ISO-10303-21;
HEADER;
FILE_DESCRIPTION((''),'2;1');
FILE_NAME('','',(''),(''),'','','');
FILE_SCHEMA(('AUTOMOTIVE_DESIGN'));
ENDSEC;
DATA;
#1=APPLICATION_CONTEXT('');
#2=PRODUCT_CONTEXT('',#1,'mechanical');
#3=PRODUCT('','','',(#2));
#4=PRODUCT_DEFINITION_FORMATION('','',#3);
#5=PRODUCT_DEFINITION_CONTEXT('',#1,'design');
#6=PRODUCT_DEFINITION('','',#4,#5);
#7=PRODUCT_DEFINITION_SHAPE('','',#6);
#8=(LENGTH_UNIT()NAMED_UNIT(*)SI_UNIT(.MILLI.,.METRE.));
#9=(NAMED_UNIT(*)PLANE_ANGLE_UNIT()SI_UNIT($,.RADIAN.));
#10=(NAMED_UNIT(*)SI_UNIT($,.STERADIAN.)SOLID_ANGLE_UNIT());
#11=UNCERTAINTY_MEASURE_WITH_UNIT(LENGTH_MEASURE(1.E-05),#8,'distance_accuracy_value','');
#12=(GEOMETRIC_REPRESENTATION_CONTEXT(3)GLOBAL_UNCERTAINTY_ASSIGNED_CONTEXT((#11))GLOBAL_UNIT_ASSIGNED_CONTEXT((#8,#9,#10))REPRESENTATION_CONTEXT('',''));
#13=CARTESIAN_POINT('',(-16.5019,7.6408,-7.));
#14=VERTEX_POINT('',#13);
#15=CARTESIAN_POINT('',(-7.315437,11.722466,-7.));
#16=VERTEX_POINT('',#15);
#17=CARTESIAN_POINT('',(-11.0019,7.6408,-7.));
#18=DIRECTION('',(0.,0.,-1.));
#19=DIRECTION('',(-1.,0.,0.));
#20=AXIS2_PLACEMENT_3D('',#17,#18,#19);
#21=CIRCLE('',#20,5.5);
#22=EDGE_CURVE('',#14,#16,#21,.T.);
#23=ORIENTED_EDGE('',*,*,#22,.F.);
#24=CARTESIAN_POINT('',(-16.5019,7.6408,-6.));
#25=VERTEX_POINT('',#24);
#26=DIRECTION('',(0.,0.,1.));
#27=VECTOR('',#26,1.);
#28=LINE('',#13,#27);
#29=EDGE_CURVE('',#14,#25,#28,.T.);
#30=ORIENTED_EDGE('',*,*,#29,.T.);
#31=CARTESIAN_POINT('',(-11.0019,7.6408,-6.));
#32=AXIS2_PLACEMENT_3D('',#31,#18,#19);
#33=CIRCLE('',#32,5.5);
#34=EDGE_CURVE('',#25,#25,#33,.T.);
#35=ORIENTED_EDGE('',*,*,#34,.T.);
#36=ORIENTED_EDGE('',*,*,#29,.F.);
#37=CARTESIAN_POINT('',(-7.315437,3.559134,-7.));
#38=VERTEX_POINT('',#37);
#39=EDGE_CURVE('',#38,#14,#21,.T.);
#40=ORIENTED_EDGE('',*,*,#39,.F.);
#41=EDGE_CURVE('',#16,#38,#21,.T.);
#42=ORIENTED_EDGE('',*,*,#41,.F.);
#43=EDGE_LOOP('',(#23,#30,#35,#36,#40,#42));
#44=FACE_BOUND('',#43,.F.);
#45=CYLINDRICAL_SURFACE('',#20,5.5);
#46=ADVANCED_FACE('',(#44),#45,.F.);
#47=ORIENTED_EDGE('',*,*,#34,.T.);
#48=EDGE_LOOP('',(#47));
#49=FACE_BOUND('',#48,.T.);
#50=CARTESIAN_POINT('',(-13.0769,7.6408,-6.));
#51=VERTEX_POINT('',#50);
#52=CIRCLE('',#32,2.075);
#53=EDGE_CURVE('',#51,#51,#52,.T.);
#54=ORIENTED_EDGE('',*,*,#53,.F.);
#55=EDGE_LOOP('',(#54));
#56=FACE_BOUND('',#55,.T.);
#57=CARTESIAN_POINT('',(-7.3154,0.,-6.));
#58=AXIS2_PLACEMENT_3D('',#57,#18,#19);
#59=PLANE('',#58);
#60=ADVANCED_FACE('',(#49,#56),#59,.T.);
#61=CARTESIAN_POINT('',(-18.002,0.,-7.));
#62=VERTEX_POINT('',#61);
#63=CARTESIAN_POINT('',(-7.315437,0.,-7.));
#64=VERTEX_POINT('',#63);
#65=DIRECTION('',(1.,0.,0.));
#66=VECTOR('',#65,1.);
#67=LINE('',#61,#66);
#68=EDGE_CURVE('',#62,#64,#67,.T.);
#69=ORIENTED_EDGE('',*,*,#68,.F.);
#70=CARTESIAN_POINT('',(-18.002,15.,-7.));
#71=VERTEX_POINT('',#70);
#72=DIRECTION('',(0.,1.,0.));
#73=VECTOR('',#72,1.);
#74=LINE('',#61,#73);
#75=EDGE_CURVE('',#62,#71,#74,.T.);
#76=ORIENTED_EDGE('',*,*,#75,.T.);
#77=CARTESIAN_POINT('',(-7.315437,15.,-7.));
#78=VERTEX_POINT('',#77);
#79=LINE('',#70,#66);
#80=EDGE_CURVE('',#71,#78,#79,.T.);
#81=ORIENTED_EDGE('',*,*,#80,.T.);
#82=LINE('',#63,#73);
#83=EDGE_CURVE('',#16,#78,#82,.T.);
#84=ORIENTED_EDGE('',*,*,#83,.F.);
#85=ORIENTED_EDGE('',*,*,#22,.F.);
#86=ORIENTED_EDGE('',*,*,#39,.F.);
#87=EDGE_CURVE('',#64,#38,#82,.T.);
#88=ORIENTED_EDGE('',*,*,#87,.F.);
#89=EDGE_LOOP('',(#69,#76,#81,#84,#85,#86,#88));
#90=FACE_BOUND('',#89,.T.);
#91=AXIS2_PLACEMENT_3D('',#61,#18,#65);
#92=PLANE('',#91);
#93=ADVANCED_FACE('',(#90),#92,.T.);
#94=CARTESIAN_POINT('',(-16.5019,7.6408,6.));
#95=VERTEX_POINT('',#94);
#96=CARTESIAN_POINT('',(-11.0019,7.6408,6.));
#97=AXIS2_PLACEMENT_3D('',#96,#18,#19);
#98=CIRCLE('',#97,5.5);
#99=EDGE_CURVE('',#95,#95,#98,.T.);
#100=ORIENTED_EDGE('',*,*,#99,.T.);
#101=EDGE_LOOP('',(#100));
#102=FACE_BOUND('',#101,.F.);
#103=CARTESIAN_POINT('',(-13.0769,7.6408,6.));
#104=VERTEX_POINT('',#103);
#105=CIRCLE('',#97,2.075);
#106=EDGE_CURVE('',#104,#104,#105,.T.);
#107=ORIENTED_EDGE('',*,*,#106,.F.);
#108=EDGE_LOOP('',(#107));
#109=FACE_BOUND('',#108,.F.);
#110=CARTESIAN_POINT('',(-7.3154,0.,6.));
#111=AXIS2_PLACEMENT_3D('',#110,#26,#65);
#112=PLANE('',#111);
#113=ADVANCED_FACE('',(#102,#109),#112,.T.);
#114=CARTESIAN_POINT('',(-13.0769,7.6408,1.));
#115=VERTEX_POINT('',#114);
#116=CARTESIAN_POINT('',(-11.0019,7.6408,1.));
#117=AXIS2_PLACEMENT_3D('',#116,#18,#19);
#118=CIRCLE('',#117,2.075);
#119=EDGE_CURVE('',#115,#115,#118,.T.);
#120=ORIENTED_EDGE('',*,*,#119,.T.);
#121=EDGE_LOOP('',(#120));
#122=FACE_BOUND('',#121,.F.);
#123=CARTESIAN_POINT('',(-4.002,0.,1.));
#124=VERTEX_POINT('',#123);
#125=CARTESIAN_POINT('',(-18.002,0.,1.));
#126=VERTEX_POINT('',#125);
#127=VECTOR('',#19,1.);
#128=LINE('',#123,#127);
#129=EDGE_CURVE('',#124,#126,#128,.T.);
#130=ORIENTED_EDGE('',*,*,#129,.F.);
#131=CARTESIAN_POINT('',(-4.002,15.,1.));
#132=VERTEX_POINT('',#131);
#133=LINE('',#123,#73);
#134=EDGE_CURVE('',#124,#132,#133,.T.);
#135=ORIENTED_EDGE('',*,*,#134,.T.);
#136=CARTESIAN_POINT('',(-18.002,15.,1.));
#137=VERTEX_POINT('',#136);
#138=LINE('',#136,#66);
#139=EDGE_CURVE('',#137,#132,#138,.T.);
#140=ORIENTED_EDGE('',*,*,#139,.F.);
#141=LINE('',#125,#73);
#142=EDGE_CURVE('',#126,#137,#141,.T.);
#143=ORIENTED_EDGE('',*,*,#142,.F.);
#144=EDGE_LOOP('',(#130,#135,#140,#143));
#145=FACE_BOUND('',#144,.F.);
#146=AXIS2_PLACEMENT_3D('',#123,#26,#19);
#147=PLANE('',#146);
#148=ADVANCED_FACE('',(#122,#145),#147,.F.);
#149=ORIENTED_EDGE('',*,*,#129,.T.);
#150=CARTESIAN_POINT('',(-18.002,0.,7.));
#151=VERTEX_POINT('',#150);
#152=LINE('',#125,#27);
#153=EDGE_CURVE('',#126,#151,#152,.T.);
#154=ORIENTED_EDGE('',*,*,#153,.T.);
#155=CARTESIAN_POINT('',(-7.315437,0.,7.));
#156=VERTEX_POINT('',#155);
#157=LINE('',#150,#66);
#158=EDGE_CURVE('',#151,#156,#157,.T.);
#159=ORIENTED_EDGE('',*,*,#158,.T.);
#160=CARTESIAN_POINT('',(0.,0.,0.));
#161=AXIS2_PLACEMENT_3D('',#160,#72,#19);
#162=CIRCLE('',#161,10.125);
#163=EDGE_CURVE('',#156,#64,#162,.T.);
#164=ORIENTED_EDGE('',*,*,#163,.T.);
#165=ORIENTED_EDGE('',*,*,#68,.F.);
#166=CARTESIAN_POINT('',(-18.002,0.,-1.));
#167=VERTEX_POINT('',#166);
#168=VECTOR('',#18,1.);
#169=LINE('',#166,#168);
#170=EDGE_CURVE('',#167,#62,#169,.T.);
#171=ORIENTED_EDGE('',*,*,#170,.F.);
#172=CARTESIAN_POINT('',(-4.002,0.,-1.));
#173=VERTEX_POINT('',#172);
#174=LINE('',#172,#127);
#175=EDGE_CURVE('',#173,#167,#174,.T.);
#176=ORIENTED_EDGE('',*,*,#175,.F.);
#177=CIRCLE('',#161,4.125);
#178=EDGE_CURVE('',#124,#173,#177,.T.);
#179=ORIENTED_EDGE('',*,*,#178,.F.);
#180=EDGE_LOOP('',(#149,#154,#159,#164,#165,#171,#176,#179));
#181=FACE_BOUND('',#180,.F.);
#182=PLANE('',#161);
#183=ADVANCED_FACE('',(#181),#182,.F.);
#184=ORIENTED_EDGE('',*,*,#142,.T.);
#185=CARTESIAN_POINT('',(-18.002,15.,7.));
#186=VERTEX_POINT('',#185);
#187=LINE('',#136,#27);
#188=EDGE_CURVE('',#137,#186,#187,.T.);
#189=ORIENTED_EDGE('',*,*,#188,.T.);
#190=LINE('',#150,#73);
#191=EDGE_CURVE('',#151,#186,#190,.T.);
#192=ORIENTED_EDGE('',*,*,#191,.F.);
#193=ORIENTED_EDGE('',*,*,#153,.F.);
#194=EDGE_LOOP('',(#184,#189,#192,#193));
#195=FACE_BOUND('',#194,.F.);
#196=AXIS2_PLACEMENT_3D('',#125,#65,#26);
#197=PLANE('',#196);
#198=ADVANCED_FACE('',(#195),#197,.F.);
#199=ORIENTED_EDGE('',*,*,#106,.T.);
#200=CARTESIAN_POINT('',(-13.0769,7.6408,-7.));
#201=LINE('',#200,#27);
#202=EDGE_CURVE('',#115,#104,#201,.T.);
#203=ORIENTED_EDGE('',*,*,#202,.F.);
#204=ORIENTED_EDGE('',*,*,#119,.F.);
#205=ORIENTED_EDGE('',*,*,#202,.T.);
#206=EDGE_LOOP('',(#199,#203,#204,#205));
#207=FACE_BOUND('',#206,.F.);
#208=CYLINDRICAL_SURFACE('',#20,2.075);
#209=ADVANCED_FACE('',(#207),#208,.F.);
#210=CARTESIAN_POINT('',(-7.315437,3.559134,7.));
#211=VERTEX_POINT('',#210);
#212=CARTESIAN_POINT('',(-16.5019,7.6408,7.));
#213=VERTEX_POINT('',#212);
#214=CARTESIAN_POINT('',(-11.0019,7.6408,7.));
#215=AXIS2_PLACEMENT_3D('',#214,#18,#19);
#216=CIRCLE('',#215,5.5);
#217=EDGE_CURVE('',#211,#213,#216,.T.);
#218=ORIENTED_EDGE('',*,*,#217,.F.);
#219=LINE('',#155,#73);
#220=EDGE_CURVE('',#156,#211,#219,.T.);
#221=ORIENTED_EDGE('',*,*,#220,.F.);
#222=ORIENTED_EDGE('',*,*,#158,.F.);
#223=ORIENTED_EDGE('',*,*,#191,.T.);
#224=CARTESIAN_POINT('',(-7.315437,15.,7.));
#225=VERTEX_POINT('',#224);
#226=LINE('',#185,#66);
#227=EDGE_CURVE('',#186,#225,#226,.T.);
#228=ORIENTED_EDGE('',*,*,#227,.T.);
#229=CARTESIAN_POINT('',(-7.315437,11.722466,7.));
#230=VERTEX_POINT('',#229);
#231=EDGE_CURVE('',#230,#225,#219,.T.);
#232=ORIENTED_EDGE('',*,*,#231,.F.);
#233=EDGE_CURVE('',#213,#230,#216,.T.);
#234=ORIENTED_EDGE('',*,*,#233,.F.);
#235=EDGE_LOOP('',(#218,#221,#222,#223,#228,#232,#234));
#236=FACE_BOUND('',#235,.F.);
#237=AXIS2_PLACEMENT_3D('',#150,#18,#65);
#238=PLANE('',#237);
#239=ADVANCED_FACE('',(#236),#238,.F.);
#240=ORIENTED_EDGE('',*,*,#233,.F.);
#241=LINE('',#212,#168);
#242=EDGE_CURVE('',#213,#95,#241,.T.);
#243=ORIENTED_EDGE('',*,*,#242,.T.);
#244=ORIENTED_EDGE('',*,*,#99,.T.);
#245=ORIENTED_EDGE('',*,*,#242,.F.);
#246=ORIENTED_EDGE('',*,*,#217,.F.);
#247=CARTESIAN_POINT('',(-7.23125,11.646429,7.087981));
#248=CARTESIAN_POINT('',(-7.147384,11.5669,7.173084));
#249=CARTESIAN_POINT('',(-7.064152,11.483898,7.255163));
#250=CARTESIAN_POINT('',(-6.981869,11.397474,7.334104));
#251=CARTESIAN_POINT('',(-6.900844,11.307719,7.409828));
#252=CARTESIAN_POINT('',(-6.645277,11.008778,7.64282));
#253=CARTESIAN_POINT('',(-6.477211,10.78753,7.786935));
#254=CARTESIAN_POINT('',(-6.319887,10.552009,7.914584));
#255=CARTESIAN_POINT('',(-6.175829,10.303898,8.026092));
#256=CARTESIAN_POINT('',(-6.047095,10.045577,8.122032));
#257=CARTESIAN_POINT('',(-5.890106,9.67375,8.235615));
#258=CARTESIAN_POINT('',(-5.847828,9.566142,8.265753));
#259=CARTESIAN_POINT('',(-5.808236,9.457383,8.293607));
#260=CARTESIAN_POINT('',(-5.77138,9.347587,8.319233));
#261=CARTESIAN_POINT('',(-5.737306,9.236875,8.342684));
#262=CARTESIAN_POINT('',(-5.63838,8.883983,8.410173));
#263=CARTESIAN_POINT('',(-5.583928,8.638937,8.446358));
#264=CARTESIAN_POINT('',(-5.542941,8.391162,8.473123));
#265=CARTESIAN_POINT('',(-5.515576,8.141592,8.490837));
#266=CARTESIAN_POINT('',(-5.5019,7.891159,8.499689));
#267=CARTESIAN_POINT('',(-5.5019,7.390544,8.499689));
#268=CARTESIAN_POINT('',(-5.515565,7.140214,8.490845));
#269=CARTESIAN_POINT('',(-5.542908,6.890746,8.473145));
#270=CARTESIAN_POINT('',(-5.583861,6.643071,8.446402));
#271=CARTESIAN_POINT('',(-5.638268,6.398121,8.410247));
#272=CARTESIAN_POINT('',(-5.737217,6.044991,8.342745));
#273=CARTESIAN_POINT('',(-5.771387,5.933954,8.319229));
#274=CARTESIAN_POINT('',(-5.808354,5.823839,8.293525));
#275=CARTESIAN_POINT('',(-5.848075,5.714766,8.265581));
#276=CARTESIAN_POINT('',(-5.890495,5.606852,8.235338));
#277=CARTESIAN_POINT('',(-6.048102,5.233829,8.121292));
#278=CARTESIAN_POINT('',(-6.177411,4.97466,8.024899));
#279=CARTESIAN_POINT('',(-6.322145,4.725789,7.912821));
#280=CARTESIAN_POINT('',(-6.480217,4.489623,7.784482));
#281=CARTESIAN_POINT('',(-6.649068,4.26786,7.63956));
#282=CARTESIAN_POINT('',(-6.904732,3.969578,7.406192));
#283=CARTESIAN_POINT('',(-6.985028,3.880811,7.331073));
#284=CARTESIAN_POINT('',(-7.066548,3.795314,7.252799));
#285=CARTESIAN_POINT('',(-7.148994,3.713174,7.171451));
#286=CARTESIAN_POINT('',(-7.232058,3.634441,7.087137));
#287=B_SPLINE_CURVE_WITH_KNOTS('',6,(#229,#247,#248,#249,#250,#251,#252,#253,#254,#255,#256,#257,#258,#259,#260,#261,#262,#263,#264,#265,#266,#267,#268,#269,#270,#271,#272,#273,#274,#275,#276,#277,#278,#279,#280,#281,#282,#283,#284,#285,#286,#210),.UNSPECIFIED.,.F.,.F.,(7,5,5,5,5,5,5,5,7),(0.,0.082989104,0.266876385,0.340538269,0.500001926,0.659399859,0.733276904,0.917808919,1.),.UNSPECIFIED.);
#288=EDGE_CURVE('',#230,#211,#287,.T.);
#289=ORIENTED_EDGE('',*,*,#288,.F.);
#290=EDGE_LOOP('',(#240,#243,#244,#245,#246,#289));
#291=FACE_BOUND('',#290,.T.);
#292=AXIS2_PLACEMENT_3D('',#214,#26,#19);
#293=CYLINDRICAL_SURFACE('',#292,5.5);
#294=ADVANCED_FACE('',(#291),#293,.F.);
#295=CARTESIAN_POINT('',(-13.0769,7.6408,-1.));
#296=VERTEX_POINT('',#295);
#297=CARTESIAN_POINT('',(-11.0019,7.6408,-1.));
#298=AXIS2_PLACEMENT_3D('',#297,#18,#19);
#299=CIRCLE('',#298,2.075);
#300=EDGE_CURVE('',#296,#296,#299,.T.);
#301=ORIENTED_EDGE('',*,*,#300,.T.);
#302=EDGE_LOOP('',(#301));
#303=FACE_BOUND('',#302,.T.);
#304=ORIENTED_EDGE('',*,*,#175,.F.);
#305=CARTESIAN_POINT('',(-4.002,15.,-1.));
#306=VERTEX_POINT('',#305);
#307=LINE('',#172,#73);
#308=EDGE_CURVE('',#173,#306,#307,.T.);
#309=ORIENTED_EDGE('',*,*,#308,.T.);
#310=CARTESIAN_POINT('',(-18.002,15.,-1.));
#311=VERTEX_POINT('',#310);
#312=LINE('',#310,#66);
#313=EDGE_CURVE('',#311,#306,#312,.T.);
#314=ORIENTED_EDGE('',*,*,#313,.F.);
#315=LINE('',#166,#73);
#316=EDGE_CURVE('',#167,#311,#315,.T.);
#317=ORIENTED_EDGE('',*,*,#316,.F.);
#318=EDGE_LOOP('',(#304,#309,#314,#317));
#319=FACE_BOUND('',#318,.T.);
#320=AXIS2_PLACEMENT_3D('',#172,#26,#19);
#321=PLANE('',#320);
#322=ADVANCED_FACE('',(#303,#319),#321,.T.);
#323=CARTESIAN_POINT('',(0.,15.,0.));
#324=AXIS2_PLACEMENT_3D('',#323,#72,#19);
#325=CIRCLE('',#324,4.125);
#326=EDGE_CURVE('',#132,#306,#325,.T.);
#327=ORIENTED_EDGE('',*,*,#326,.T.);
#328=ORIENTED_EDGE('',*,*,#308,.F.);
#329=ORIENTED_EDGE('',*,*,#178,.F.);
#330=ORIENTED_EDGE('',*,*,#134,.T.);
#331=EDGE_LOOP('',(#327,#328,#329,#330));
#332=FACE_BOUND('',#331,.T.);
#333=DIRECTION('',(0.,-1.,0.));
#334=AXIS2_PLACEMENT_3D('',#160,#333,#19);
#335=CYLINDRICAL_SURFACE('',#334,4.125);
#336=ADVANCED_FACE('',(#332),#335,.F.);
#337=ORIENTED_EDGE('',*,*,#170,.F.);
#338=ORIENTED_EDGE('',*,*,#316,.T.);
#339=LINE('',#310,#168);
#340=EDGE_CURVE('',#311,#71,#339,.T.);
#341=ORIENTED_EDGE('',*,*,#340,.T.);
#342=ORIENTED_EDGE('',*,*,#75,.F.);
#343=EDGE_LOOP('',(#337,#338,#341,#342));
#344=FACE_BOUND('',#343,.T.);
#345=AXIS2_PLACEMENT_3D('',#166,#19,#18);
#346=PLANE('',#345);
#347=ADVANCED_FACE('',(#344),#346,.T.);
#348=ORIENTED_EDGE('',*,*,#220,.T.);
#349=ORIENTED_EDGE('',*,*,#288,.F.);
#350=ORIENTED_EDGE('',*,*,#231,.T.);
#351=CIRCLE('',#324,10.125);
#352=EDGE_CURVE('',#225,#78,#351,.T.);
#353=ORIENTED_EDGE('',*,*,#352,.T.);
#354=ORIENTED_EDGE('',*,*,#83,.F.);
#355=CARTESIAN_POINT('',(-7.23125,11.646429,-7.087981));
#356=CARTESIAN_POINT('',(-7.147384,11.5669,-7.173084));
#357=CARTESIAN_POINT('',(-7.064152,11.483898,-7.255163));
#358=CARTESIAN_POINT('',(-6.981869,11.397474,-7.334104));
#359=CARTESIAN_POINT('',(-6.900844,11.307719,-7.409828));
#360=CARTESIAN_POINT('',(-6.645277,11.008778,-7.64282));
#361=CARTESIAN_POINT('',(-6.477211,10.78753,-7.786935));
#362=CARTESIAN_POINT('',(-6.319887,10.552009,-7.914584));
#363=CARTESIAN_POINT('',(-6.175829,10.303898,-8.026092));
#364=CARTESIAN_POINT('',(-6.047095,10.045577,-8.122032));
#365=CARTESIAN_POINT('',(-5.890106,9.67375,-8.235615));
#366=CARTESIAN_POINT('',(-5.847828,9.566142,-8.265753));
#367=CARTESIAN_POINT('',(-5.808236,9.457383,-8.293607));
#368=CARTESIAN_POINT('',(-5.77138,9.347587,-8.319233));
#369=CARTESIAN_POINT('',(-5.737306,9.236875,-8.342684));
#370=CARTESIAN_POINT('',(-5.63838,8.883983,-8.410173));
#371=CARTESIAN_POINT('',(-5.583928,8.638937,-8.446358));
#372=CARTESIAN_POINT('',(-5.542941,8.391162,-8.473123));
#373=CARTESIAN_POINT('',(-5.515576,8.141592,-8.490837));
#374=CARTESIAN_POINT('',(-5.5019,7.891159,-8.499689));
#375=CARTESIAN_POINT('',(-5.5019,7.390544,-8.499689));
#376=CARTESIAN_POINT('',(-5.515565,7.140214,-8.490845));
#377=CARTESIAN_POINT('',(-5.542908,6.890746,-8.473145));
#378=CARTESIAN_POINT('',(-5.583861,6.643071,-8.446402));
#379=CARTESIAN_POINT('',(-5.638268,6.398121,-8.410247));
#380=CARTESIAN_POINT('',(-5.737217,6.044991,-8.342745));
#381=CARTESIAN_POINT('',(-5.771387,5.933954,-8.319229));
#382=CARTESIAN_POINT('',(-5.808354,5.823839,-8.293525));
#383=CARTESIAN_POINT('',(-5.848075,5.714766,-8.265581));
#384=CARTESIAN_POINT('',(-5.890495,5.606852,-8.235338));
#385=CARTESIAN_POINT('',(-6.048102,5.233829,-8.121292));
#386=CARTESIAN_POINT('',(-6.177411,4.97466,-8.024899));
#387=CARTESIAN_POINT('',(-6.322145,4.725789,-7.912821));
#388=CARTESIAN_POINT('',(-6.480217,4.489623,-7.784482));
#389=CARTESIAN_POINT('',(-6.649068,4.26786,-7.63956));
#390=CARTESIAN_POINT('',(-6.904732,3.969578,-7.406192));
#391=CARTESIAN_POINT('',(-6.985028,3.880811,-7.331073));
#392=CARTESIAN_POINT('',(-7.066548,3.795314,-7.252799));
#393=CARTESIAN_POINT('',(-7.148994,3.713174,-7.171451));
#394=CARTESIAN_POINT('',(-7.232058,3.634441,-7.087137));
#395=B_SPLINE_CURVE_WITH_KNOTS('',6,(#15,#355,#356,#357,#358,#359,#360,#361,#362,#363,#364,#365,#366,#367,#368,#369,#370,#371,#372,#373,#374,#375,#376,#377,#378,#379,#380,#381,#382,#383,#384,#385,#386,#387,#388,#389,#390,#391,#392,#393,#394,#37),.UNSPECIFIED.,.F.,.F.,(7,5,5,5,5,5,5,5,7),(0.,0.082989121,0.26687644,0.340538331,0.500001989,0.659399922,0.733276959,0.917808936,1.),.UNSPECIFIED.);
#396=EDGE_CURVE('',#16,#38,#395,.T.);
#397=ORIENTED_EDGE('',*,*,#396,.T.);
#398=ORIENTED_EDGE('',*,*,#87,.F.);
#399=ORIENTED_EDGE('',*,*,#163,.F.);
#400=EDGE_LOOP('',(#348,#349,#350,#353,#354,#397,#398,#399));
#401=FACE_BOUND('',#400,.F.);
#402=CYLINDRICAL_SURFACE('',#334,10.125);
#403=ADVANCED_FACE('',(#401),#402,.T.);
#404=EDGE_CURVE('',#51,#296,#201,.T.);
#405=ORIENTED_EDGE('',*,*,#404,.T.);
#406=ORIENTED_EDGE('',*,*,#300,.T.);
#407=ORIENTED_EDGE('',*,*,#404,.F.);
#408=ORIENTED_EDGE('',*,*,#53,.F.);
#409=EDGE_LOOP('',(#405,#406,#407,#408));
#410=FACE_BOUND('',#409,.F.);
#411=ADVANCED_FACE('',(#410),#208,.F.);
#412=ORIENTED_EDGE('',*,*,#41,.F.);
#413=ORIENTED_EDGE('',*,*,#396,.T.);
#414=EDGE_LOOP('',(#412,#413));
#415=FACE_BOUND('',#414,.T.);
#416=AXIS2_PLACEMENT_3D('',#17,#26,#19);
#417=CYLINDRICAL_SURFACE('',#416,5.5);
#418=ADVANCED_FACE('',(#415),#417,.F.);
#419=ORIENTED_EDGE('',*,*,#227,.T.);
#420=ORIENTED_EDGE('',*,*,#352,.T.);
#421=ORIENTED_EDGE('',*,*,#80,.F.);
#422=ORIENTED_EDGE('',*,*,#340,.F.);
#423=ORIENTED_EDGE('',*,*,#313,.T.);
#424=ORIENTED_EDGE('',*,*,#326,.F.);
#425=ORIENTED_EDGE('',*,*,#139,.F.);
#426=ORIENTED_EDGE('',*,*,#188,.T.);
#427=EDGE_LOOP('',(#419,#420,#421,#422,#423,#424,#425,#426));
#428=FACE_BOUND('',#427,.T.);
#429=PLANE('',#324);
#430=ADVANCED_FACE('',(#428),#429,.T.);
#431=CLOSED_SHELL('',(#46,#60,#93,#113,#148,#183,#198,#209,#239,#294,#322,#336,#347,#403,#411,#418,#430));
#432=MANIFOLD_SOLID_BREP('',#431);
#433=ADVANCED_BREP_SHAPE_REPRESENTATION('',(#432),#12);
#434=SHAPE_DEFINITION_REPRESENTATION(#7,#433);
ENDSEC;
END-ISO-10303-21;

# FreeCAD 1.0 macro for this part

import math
import FreeCAD as App
import Part
import Sketcher

doc = App.newDocument("Part")
body = doc.addObject("PartDesign::Body", "Body")

# Sketch on XZ plane
sketch1 = doc.addObject("Sketcher::SketchObject", "Sketch")
body.addObject(sketch1)
sketch1.AttachmentSupport = (doc.XZ_Plane, [""])
sketch1.MapMode = "FlatFace"
sketch1.addGeometry([
    Part.LineSegment(App.Vector(-4, 1, 0), App.Vector(-18, 1, 0)),  # 0
    Part.LineSegment(App.Vector(-18, 1, 0), App.Vector(-18, 7, 0)),  # 1
    Part.LineSegment(App.Vector(-18, 7, 0), App.Vector(-7.3, 7, 0)),  # 2
    Part.ArcOfCircle(Part.Circle(App.Vector(0, 0, 0), App.Vector(0, 0, 1), 10.1), math.radians(-136), math.radians(136)),  # 3
    Part.LineSegment(App.Vector(-7.3, -7, 0), App.Vector(-18, -7, 0)),  # 4
    Part.LineSegment(App.Vector(-18, -7, 0), App.Vector(-18, -1, 0)),  # 5
    Part.LineSegment(App.Vector(-18, -1, 0), App.Vector(-4, -1, 0)),  # 6
    Part.ArcOfCircle(Part.Circle(App.Vector(0, 0, 0), App.Vector(0, 0, 1), 4.1), math.radians(-166), math.radians(166)),  # 7
], False)
sketch1.addConstraint([
    Sketcher.Constraint("Coincident", 0, 2, 1, 1),
    Sketcher.Constraint("Coincident", 1, 2, 2, 1),
    Sketcher.Constraint("Coincident", 2, 2, 3, 2),
    Sketcher.Constraint("Coincident", 3, 1, 4, 1),
    Sketcher.Constraint("Coincident", 4, 2, 5, 1),
    Sketcher.Constraint("Coincident", 5, 2, 6, 1),
    Sketcher.Constraint("Coincident", 6, 2, 7, 1),
    Sketcher.Constraint("Coincident", 7, 2, 0, 1),
    Sketcher.Constraint("Horizontal", 0),
    Sketcher.Constraint("Vertical", 1),
    Sketcher.Constraint("Horizontal", 2),
    Sketcher.Constraint("Horizontal", 4),
    Sketcher.Constraint("Vertical", 5),
    Sketcher.Constraint("Horizontal", 6),
    Sketcher.Constraint("Coincident", 3, 3, -1, 1),
    Sketcher.Constraint("Coincident", 7, 3, -1, 1),
    Sketcher.Constraint("Symmetric", 1, 2, 4, 2, -1),
    Sketcher.Constraint("Vertical", 6, 2, 7, 2),
    Sketcher.Constraint("DistanceX", 0, 2, 0, 1, 14.0),
    Sketcher.Constraint("DistanceY", 1, 1, 1, 2, 6.0),
    Sketcher.Constraint("DistanceY", -1, 1, 0, 2, 1.0),
    Sketcher.Constraint("Radius", 3, 10.125),
    Sketcher.Constraint("Radius", 7, 4.125),
])
pad1 = doc.addObject("PartDesign::Pad", "Pad")
body.addObject(pad1)
pad1.Profile = sketch1
pad1.Length = 15
pad1.Reversed = True

# Sketch on XY plane
sketch2 = doc.addObject("Sketcher::SketchObject", "Sketch001")
body.addObject(sketch2)
sketch2.AttachmentSupport = (doc.XY_Plane, [""])
sketch2.MapMode = "FlatFace"
sketch2.AttachmentOffset = App.Placement(App.Vector(0, 0, -7), App.Rotation())
sketch2.addGeometry(Part.Circle(App.Vector(-11, 7.6, 0), App.Vector(0, 0, 1), 2.1), False)
sketch2.addConstraint([
    Sketcher.Constraint("Diameter", 0, 4.15),
    Sketcher.Constraint("DistanceX", 0, 3, -1, 1, 11.002),
    Sketcher.Constraint("DistanceY", -1, 1, 0, 3, 7.6408),
])
pocket1 = doc.addObject("PartDesign::Pocket", "Pocket")
body.addObject(pocket1)
pocket1.Profile = sketch2
pocket1.Length = 14
pocket1.Reversed = True

# Sketch on XY plane
sketch3 = doc.addObject("Sketcher::SketchObject", "Sketch002")
body.addObject(sketch3)
sketch3.AttachmentSupport = (doc.XY_Plane, [""])
sketch3.MapMode = "FlatFace"
sketch3.AttachmentOffset = App.Placement(App.Vector(0, 0, -7), App.Rotation())
sketch3.addGeometry([
    Part.Circle(App.Vector(-11, 7.6, 0), App.Vector(0, 0, 1), 5.5),
    Part.Circle(App.Vector(-11, 7.6, 0), App.Vector(0, 0, 1), 2.1),
], False)
sketch3.addConstraint([
    Sketcher.Constraint("Coincident", 1, 3, 0, 3),
    Sketcher.Constraint("Diameter", 0, 11.0),
    Sketcher.Constraint("Diameter", 1, 4.15),
    Sketcher.Constraint("DistanceX", 0, 3, -1, 1, 11.002),
    Sketcher.Constraint("DistanceY", -1, 1, 0, 3, 7.6408),
])
pocket2 = doc.addObject("PartDesign::Pocket", "Pocket001")
body.addObject(pocket2)
pocket2.Profile = sketch3
pocket2.Type = "TwoLengths"
pocket2.Length = 5
pocket2.Length2 = 1
doc.recompute()

mirrored = doc.addObject("PartDesign::Mirrored", "Mirrored")
body.addObject(mirrored)
mirrored.Originals = [pocket2]
mirrored.MirrorPlane = (doc.XY_Plane, [""])
body.Tip = mirrored

doc.recompute()
